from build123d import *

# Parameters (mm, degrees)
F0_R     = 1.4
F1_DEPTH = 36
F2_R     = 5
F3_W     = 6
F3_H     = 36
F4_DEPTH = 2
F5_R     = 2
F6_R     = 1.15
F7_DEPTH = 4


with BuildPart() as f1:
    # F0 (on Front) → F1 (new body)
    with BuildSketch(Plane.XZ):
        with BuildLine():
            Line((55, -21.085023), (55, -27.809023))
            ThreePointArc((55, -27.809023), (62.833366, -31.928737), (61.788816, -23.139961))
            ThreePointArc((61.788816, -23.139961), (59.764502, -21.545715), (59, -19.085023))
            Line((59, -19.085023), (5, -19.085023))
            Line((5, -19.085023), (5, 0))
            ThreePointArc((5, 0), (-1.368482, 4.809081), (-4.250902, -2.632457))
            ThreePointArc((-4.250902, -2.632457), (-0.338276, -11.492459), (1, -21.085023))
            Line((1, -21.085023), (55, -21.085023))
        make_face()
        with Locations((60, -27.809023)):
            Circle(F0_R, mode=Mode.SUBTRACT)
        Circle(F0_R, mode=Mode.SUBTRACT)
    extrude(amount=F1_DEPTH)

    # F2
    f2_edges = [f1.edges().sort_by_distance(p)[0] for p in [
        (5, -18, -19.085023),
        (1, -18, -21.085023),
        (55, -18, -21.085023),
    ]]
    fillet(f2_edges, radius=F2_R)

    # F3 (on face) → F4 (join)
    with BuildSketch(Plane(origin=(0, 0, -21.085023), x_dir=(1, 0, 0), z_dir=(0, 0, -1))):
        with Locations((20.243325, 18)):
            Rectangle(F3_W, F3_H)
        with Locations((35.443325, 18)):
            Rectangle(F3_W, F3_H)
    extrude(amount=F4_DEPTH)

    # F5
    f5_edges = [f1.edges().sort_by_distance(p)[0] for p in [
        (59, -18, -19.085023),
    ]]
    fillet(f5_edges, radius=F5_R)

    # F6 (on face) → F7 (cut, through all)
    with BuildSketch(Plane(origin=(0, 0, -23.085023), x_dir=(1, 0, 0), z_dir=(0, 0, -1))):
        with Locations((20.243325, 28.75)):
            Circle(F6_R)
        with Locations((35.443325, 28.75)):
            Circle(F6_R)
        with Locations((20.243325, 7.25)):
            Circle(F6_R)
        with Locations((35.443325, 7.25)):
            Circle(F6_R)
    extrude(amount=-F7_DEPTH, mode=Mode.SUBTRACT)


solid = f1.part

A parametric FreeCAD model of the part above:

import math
import FreeCAD as App
import Part
import Sketcher

V = App.Vector
Q = App.Units.Quantity


def edges_at(feature, points):
    """Names of the edges that pass closest to the given points."""
    edges = feature.Shape.Edges
    near = lambda p: min(range(len(edges)), key=lambda i: edges[i].distToShape(Part.Vertex(*p))[0])
    return sorted({f"Edge{near(p) + 1}" for p in points})


def add_polygon(sketch, points):
    """Adds a closed chain of lines whose ends are joined by coincident constraints."""
    first, n = sketch.GeometryCount, len(points)
    for a, b in zip(points, points[1:] + points[:1]):
        sketch.addGeometry(Part.LineSegment(App.Vector(*a, 0), App.Vector(*b, 0)), False)
    for i in range(n):
        sketch.addConstraint(Sketcher.Constraint("Coincident", first + i, 2, first + (i + 1) % n, 1))

doc = App.newDocument("Part")
params = doc.addObject("Spreadsheet::Sheet", "Params")
for row, (alias, value) in enumerate([
    ("sketch1_radius", "5 mm"),
    ("sketch1_diameter", "2.8 mm"),
    ("sketch1_width", "54 mm"),
    ("pad1_length", "36 mm"),
    ("fillet_radius", "5 mm"),
    ("sketch2_width", "6 mm"),
    ("sketch2_height", "36 mm"),
    ("pad2_length", "2 mm"),
    ("fillet2_radius", "2 mm"),
    ("sketch3_diameter", "2.3 mm"),
], start=1):
    params.set(f"A{row}", alias)
    params.set(f"B{row}", "=" + value)
    params.setAlias(f"B{row}", alias)

body = doc.addObject("PartDesign::Body", "Body")

# Sketch on XZ plane
sketch1 = body.newObject("Sketcher::SketchObject", "Sketch")
sketch1.AttachmentSupport = (doc.getObject("XZ_Plane"), [""])
sketch1.MapMode = "FlatFace"
sketch1.addGeometry(Part.LineSegment(V(55, -21.085023, 0), V(55, -27.809023, 0)), False)
sketch1.addGeometry(Part.ArcOfCircle(Part.Circle(V(60, -27.809023, 0), V(0, 0, 1), 5), math.radians(179.999998), math.radians(429.037115)), False)
sketch1.addGeometry(Part.ArcOfCircle(Part.Circle(V(63.342347, -19.085024, 0), V(0, 0, 1), 4.342347), math.radians(179.999992), math.radians(249.037126)), False)
sketch1.addGeometry(Part.LineSegment(V(59, -19.085023, 0), V(5, -19.085023, 0)), False)
sketch1.addGeometry(Part.LineSegment(V(5, -19.085023, 0), V(5, 0, 0)), False)
sketch1.addGeometry(Part.ArcOfCircle(Part.Circle(V(0, 0, 0), V(0, 0, 1), 5), math.radians(-0.000004), math.radians(211.768703)), False)
sketch1.addGeometry(Part.ArcOfCircle(Part.Circle(V(-34.048192, -21.085025, 0), V(0, 0, 1), 35.048192), math.radians(0.000004), math.radians(31.768691)), False)
sketch1.addGeometry(Part.LineSegment(V(1, -21.085023, 0), V(55, -21.085023, 0)), False)
sketch1.addGeometry(Part.Circle(V(60, -27.809023, 0), V(0, 0, 1), 1.4), False)
sketch1.addGeometry(Part.Circle(V(0, 0, 0), V(0, 0, 1), 1.4), False)
sketch1.addConstraint(Sketcher.Constraint("Tangent", 0, 2, 1, 1))
sketch1.addConstraint(Sketcher.Constraint("Tangent", 1, 2, 2, 2))
sketch1.addConstraint(Sketcher.Constraint("Coincident", 2, 1, 3, 1))
sketch1.addConstraint(Sketcher.Constraint("Coincident", 3, 2, 4, 1))
sketch1.addConstraint(Sketcher.Constraint("Tangent", 4, 2, 5, 1))
sketch1.addConstraint(Sketcher.Constraint("Tangent", 5, 2, 6, 2))
sketch1.addConstraint(Sketcher.Constraint("Coincident", 6, 1, 7, 1))
sketch1.addConstraint(Sketcher.Constraint("Coincident", 7, 2, 0, 1))
sketch1.addConstraint(Sketcher.Constraint("Vertical", 0))
sketch1.addConstraint(Sketcher.Constraint("Horizontal", 3))
sketch1.addConstraint(Sketcher.Constraint("Vertical", 4))
sketch1.addConstraint(Sketcher.Constraint("Horizontal", 7))
sketch1.addConstraint(Sketcher.Constraint("Coincident", 5, 3, -1, 1))
sketch1.addConstraint(Sketcher.Constraint("Coincident", 9, 3, -1, 1))
sketch1.addConstraint(Sketcher.Constraint("Coincident", 8, 3, 1, 3))
sketch1.addConstraint(Sketcher.Constraint("Equal", 1, 5))
sketch1.addConstraint(Sketcher.Constraint("Equal", 8, 9))
sketch1.addConstraint(Sketcher.Constraint("Equal", 3, 7))
sketch1.addConstraint(Sketcher.Constraint("Radius", 1, Q("5 mm")))
sketch1.addConstraint(Sketcher.Constraint("Diameter", 8, Q("2.8 mm")))
sketch1.addConstraint(Sketcher.Constraint("DistanceX", 3, 2, 3, 1, Q("54 mm")))
sketch1.addConstraint(Sketcher.Constraint("DistanceX", -1, 1, 1, 3, Q("60 mm")))
sketch1.addConstraint(Sketcher.Constraint("DistanceY", 6, 3, 2, 3, Q("2.000002 mm")))
sketch1.addConstraint(Sketcher.Constraint("DistanceY", 6, 1, 3, 2, Q("2 mm")))
sketch1.addConstraint(Sketcher.Constraint("DistanceY", 0, 2, 0, 1, Q("6.724 mm")))
sketch1.addConstraint(Sketcher.Constraint("Radius", 2, Q("4.342347 mm")))
sketch1.addConstraint(Sketcher.Constraint("Radius", 6, Q("35.048192 mm")))
sketch1.setExpression("Constraints[18]", "Params.sketch1_radius")
sketch1.setExpression("Constraints[19]", "Params.sketch1_diameter")
sketch1.setExpression("Constraints[20]", "Params.sketch1_width")
pad1 = body.newObject("PartDesign::Pad", "Pad")
pad1.Profile = sketch1
pad1.setExpression("Length", "Params.pad1_length")
doc.recompute()

fillet = body.newObject("PartDesign::Fillet", "Fillet")
fillet.Base = (pad1, edges_at(pad1, [(5, -18, -19.085), (1, -18, -21.085), (55, -18, -21.085)]))
fillet.setExpression("Radius", "Params.fillet_radius")

# Sketch on XY plane
sketch2 = body.newObject("Sketcher::SketchObject", "Sketch001")
sketch2.AttachmentSupport = (doc.getObject("XY_Plane"), [""])
sketch2.MapMode = "FlatFace"
sketch2.AttachmentOffset = App.Placement(V(0, 0, -21.085023), App.Rotation())
add_polygon(sketch2, [(17.243325, -36), (17.243325, 0), (23.243325, 0), (23.243325, -36)])  # lines 0-3
add_polygon(sketch2, [(32.443325, -36), (32.443325, 0), (38.443325, 0), (38.443325, -36)])  # lines 4-7
sketch2.addConstraint(Sketcher.Constraint("Vertical", 0))
sketch2.addConstraint(Sketcher.Constraint("Horizontal", 1))
sketch2.addConstraint(Sketcher.Constraint("Vertical", 2))
sketch2.addConstraint(Sketcher.Constraint("Horizontal", 3))
sketch2.addConstraint(Sketcher.Constraint("Vertical", 4))
sketch2.addConstraint(Sketcher.Constraint("Horizontal", 5))
sketch2.addConstraint(Sketcher.Constraint("Vertical", 6))
sketch2.addConstraint(Sketcher.Constraint("Horizontal", 7))
sketch2.addConstraint(Sketcher.Constraint("PointOnObject", 0, 2, -1))
sketch2.addConstraint(Sketcher.Constraint("PointOnObject", 4, 2, -1))
sketch2.addConstraint(Sketcher.Constraint("Horizontal", 3, 2, 6, 2))
sketch2.addConstraint(Sketcher.Constraint("Equal", 3, 5))
sketch2.addConstraint(Sketcher.Constraint("DistanceX", 1, 1, 1, 2, Q("6 mm")))
sketch2.addConstraint(Sketcher.Constraint("DistanceY", 0, 1, 0, 2, Q("36 mm")))
sketch2.addConstraint(Sketcher.Constraint("DistanceX", 1, 2, 4, 2, Q("9.2 mm")))
sketch2.addConstraint(Sketcher.Constraint("DistanceX", -1, 1, 0, 2, Q("17.243325 mm")))
sketch2.setExpression("Constraints[20]", "Params.sketch2_width")
sketch2.setExpression("Constraints[21]", "Params.sketch2_height")
pad2 = body.newObject("PartDesign::Pad", "Pad001")
pad2.Profile = sketch2
pad2.setExpression("Length", "Params.pad2_length")
pad2.Reversed = True
doc.recompute()

fillet2 = body.newObject("PartDesign::Fillet", "Fillet001")
fillet2.Base = (pad2, edges_at(pad2, [(59, -18, -19.085)]))
fillet2.setExpression("Radius", "Params.fillet2_radius")

# Sketch on XY plane
sketch3 = body.newObject("Sketcher::SketchObject", "Sketch002")
sketch3.AttachmentSupport = (doc.getObject("XY_Plane"), [""])
sketch3.MapMode = "FlatFace"
sketch3.AttachmentOffset = App.Placement(V(0, 0, -23.085023), App.Rotation())
sketch3.addGeometry(Part.Circle(V(20.243325, -28.75, 0), V(0, 0, 1), 1.15), False)
sketch3.addGeometry(Part.Circle(V(35.443325, -28.75, 0), V(0, 0, 1), 1.15), False)
sketch3.addGeometry(Part.Circle(V(20.243325, -7.25, 0), V(0, 0, 1), 1.15), False)
sketch3.addGeometry(Part.Circle(V(35.443325, -7.25, 0), V(0, 0, 1), 1.15), False)
sketch3.addConstraint(Sketcher.Constraint("Equal", 0, 1))
sketch3.addConstraint(Sketcher.Constraint("Equal", 1, 2))
sketch3.addConstraint(Sketcher.Constraint("Equal", 2, 3))
sketch3.addConstraint(Sketcher.Constraint("Horizontal", 0, 3, 1, 3))
sketch3.addConstraint(Sketcher.Constraint("Horizontal", 2, 3, 3, 3))
sketch3.addConstraint(Sketcher.Constraint("Vertical", 0, 3, 2, 3))
sketch3.addConstraint(Sketcher.Constraint("Vertical", 1, 3, 3, 3))
sketch3.addConstraint(Sketcher.Constraint("Diameter", 0, Q("2.3 mm")))
sketch3.addConstraint(Sketcher.Constraint("DistanceX", 0, 3, 1, 3, Q("15.2 mm")))
sketch3.addConstraint(Sketcher.Constraint("DistanceY", 0, 3, 2, 3, Q("21.5 mm")))
sketch3.addConstraint(Sketcher.Constraint("DistanceY", 0, 3, -1, 1, Q("28.75 mm")))
sketch3.addConstraint(Sketcher.Constraint("DistanceX", -1, 1, 0, 3, Q("20.243325 mm")))
sketch3.setExpression("Constraints[7]", "Params.sketch3_diameter")
pocket1 = body.newObject("PartDesign::Pocket", "Pocket")
pocket1.Profile = sketch3
pocket1.Type = "ThroughAll"
pocket1.Reversed = True

doc.recompute()
